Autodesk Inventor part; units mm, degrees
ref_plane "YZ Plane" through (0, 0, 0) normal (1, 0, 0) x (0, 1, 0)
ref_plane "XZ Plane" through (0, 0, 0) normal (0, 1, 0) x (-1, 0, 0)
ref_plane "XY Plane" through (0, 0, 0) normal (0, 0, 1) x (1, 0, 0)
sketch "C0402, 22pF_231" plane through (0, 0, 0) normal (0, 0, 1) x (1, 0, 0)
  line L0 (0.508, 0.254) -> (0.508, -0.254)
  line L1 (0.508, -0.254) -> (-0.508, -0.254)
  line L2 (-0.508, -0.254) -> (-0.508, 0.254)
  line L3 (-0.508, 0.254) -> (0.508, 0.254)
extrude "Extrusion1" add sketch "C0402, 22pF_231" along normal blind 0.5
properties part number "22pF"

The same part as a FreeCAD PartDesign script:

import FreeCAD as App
import Part
import Sketcher
from FreeCAD import Vector
Q = App.Units.Quantity


def add_polygon(sketch, points):
    """Adds a closed chain of lines whose ends are joined by coincident constraints."""
    first, n = sketch.GeometryCount, len(points)
    for a, b in zip(points, points[1:] + points[:1]):
        sketch.addGeometry(Part.LineSegment(App.Vector(*a, 0), App.Vector(*b, 0)), False)
    for i in range(n):
        sketch.addConstraint(Sketcher.Constraint("Coincident", first + i, 2, first + (i + 1) % n, 1))

doc = App.newDocument("Part")
body = doc.addObject("PartDesign::Body", "Body")

sketch1 = doc.addObject("Sketcher::SketchObject", "Sketch")
body.addObject(sketch1)
sketch1.AttachmentSupport = (doc.XY_Plane, [""])
sketch1.MapMode = "FlatFace"
add_polygon(sketch1, [(0.508, -0.254), (0.508, 0.254), (-0.508, 0.254), (-0.508, -0.254)])
sketch1.addConstraint([
    Sketcher.Constraint("Vertical", 0),
    Sketcher.Constraint("Horizontal", 1),
    Sketcher.Constraint("Vertical", 2),
    Sketcher.Constraint("Horizontal", 3),
    Sketcher.Constraint("Symmetric", 0, 2, 2, 2, -1, 1),
    Sketcher.Constraint("DistanceX", 1, 2, 1, 1, Q("0.04 in")),
    Sketcher.Constraint("DistanceY", 0, 1, 0, 2, Q("0.02 in")),
])
pad1 = doc.addObject("PartDesign::Pad", "Pad")
body.addObject(pad1)
pad1.Profile = sketch1
pad1.Length = 0.5

doc.recompute()
